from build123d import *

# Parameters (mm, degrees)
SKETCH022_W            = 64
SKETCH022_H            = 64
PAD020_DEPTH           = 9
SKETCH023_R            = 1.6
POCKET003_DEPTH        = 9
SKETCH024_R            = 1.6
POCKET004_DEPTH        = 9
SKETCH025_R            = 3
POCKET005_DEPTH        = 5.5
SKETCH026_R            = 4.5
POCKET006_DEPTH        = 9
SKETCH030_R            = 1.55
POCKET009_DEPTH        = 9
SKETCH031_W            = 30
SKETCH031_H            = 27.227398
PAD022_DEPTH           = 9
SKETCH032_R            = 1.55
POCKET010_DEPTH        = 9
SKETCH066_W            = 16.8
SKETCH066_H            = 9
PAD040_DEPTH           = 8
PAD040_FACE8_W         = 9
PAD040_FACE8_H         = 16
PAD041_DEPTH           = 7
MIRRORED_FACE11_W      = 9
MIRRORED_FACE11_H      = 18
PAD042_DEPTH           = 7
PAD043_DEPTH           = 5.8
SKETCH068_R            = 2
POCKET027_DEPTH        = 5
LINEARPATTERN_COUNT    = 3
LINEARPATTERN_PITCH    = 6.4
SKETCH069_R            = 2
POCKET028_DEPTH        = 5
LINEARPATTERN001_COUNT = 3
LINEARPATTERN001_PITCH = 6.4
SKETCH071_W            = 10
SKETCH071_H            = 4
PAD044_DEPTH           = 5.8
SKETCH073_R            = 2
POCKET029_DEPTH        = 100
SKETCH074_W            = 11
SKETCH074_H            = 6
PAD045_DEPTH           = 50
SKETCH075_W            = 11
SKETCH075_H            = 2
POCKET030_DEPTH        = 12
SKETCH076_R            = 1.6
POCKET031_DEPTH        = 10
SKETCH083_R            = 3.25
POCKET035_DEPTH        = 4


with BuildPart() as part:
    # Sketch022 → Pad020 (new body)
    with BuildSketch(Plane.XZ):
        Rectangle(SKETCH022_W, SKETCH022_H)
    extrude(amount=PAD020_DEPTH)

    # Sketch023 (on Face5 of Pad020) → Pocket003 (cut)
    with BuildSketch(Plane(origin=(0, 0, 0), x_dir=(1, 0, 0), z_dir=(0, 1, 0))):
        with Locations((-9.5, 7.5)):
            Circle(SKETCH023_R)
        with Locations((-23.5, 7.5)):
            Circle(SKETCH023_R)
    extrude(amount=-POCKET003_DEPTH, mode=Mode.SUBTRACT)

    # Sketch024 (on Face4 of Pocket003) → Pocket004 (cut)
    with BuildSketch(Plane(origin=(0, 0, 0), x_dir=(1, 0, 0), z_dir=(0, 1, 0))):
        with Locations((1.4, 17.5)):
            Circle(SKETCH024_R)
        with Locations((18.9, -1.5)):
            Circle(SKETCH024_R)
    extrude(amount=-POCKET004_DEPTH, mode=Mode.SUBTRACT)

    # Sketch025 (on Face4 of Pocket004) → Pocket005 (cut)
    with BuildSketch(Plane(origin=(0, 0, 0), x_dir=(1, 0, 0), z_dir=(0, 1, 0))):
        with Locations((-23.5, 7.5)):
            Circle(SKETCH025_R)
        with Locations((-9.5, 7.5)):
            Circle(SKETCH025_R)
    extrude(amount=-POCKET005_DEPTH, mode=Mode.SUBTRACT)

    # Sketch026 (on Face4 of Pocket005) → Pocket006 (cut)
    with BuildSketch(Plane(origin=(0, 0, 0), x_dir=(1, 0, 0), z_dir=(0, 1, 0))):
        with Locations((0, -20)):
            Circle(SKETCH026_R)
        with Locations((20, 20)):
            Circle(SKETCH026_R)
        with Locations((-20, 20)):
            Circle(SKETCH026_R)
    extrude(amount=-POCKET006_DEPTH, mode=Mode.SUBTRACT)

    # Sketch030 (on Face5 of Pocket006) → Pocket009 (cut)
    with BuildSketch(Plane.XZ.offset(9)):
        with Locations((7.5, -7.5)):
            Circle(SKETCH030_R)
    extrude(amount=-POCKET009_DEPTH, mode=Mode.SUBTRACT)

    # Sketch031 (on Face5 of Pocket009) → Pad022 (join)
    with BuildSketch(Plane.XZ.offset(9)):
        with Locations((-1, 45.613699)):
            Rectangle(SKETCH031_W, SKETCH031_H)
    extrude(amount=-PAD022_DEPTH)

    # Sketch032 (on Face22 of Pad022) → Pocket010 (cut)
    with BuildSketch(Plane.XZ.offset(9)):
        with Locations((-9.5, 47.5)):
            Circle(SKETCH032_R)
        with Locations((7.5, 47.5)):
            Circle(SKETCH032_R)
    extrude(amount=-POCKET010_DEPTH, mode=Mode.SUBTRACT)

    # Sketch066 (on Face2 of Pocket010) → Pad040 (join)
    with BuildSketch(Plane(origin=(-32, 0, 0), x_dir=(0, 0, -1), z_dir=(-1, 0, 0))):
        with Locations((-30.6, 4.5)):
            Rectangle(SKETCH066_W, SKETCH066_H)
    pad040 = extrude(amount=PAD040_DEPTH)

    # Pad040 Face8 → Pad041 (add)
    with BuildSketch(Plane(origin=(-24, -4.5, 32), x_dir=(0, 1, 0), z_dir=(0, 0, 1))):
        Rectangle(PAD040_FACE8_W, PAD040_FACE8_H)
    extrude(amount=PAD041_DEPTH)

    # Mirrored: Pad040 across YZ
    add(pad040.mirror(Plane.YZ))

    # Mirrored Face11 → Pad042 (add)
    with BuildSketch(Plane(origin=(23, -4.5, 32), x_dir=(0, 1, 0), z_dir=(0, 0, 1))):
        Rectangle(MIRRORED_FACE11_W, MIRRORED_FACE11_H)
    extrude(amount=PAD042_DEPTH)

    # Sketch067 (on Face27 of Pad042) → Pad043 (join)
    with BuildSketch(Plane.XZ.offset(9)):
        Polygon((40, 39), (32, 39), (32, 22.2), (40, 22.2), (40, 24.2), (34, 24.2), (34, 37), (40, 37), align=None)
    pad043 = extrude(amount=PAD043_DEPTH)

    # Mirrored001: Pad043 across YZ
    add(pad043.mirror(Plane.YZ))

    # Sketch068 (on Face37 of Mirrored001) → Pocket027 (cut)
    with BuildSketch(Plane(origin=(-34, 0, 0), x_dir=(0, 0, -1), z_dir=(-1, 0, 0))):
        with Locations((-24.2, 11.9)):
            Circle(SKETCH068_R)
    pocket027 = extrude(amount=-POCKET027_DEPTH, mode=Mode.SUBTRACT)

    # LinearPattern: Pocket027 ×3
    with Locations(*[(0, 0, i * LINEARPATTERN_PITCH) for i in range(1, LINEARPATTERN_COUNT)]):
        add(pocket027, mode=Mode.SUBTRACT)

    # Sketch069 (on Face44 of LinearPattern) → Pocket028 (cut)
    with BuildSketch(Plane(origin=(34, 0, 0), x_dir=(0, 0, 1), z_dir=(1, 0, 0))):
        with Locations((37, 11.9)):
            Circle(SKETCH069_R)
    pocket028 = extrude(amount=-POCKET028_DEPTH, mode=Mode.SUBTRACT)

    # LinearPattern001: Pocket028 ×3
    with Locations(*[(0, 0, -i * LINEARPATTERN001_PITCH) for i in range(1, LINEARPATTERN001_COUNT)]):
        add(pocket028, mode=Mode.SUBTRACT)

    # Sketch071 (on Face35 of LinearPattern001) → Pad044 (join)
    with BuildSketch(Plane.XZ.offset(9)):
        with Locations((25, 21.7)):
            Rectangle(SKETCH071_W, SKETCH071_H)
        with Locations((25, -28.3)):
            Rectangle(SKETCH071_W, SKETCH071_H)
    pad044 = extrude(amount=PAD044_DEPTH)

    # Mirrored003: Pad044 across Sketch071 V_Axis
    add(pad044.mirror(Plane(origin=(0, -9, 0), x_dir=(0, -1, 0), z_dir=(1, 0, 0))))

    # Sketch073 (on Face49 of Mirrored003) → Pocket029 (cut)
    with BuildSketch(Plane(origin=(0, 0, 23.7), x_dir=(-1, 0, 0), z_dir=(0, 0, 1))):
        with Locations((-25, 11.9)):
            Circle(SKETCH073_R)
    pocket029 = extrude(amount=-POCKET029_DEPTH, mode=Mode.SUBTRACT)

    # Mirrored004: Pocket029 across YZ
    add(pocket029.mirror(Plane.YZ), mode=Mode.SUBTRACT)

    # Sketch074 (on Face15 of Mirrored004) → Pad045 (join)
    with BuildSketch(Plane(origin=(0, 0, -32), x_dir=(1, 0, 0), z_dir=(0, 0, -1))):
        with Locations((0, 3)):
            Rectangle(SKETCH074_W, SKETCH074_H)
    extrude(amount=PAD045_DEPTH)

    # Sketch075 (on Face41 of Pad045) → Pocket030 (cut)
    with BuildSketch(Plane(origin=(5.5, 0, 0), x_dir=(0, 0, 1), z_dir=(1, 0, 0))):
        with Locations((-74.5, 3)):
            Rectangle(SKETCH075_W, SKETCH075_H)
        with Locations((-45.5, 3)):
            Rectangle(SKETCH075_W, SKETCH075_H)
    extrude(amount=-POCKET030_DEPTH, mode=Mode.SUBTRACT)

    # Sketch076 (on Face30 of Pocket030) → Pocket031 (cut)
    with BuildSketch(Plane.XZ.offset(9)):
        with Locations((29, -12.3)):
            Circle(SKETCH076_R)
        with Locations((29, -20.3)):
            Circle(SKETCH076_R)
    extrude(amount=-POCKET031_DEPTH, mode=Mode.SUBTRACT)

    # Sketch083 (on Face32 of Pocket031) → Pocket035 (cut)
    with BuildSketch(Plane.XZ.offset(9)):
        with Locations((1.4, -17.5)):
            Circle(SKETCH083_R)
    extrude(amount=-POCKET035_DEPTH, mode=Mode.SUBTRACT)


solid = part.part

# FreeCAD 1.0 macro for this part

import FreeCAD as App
import Part
import Sketcher

V = App.Vector

doc = App.newDocument("Part")
params = doc.addObject("Spreadsheet::Sheet", "Params")
for row, (alias, value) in enumerate([
    ("sketch1_width", "64 mm"),
    ("pad1_length", "9 mm"),
    ("sketch2_diameter", "3.2 mm"),
    ("pocket1_length", "9 mm"),
    ("sketch3_diameter", "3.2 mm"),
    ("pocket2_length", "9 mm"),
    ("sketch4_diameter", "6 mm"),
    ("pocket3_length", "5.5 mm"),
    ("sketch5_diameter", "9 mm"),
    ("pocket4_length", "9 mm"),
    ("sketch6_diameter", "3.1 mm"),
    ("pocket5_length", "9 mm"),
    ("sketch7_width", "30 mm"),
    ("pad2_length", "9 mm"),
    ("sketch8_diameter", "3.1 mm"),
    ("pocket6_length", "9 mm"),
    ("sketch9_width", "9 mm"),
    ("sketch9_height", "16.8 mm"),
    ("pad3_length", "8 mm"),
    ("sketch10_width", "16 mm"),
    ("sketch10_height", "9 mm"),
    ("pad4_length", "7 mm"),
    ("sketch11_width", "18 mm"),
    ("sketch11_height", "9 mm"),
    ("pad5_length", "7 mm"),
    ("sketch12_width", "8 mm"),
    ("sketch12_width2", "6 mm"),
    ("sketch12_height", "2 mm"),
    ("sketch12_height2", "16.8 mm"),
    ("pad6_length", "5.8 mm"),
    ("sketch13_diameter", "4 mm"),
    ("pocket7_length", "5 mm"),
    ("linearpattern_pitch", "6.4 mm"),
    ("sketch14_diameter", "4 mm"),
    ("pocket8_length", "5 mm"),
    ("linearpattern2_pitch", "6.4 mm"),
    ("sketch15_width", "10 mm"),
    ("sketch15_height", "4 mm"),
    ("pad7_length", "5.8 mm"),
    ("sketch16_diameter", "4 mm"),
    ("pocket9_length", "100 mm"),
    ("sketch17_width", "11 mm"),
    ("sketch17_height", "6 mm"),
    ("pad8_length", "50 mm"),
    ("sketch18_width", "2 mm"),
    ("sketch18_height", "11 mm"),
    ("pocket10_length", "12 mm"),
    ("sketch19_diameter", "3.2 mm"),
    ("pocket11_length", "10 mm"),
    ("sketch20_diameter", "6.5 mm"),
    ("pocket12_length", "4 mm"),
], start=1):
    params.set(f"A{row}", alias)
    params.set(f"B{row}", "=" + value)
    params.setAlias(f"B{row}", alias)

body = doc.addObject("PartDesign::Body", "Body")

# Sketch on XZ plane
sketch1 = body.newObject("Sketcher::SketchObject", "Sketch")
sketch1.AttachmentSupport = (doc.getObject("XZ_Plane"), [""])
sketch1.MapMode = "FlatFace"
sketch1.addGeometry([
    Part.LineSegment(V(-32, 32, 0), V(-32, -32, 0)),
    Part.LineSegment(V(-32, -32, 0), V(32, -32, 0)),
    Part.LineSegment(V(32, -32, 0), V(32, 32, 0)),
    Part.LineSegment(V(32, 32, 0), V(-32, 32, 0)),
], False)
sketch1.addConstraint([
    Sketcher.Constraint("Coincident", 0, 2, 1, 1),
    Sketcher.Constraint("Coincident", 1, 2, 2, 1),
    Sketcher.Constraint("Coincident", 2, 2, 3, 1),
    Sketcher.Constraint("Coincident", 3, 2, 0, 1),
    Sketcher.Constraint("Vertical", 0),
    Sketcher.Constraint("Horizontal", 1),
    Sketcher.Constraint("Vertical", 2),
    Sketcher.Constraint("Horizontal", 3),
    Sketcher.Constraint("Symmetric", 0, 2, 2, 2, -1, 1),
    Sketcher.Constraint("Equal", 3, 0),
    Sketcher.Constraint("DistanceX", 1, 1, 1, 2, 64.0),
])
sketch1.setExpression("Constraints[10]", "Params.sketch1_width")
pad1 = body.newObject("PartDesign::Pad", "Pad")
pad1.Profile = sketch1
pad1.setExpression("Length", "Params.pad1_length")

# Sketch on XZ plane
sketch2 = body.newObject("Sketcher::SketchObject", "Sketch001")
sketch2.AttachmentSupport = (doc.getObject("XZ_Plane"), [""])
sketch2.MapMode = "FlatFace"
sketch2.addGeometry([
    Part.Circle(V(-9.5, -7.5, 0), V(0, 0, 1), 1.6),
    Part.Circle(V(-23.5, -7.5, 0), V(0, 0, 1), 1.6),
], False)
sketch2.addConstraint([
    Sketcher.Constraint("Equal", 0, 1),
    Sketcher.Constraint("Horizontal", 0, 3, 1, 3),
    Sketcher.Constraint("Diameter", 0, 3.2),
    Sketcher.Constraint("DistanceX", 1, 3, 0, 3, 14.0),
    Sketcher.Constraint("DistanceX", 0, 3, -1, 1, 9.5),
    Sketcher.Constraint("DistanceY", 0, 3, -1, 1, 7.5),
])
sketch2.setExpression("Constraints[2]", "Params.sketch2_diameter")
pocket1 = body.newObject("PartDesign::Pocket", "Pocket")
pocket1.Profile = sketch2
pocket1.setExpression("Length", "Params.pocket1_length")
pocket1.Reversed = True

# Sketch on XZ plane
sketch3 = body.newObject("Sketcher::SketchObject", "Sketch002")
sketch3.AttachmentSupport = (doc.getObject("XZ_Plane"), [""])
sketch3.MapMode = "FlatFace"
sketch3.addGeometry([
    Part.Circle(V(1.4, -17.5, 0), V(0, 0, 1), 1.6),
    Part.Circle(V(18.9, 1.5, 0), V(0, 0, 1), 1.6),
], False)
sketch3.addConstraint([
    Sketcher.Constraint("Equal", 0, 1),
    Sketcher.Constraint("Diameter", 0, 3.2),
    Sketcher.Constraint("DistanceY", 0, 3, 1, 3, 19.0),
    Sketcher.Constraint("DistanceX", -1, 1, 0, 3, 1.4),
    Sketcher.Constraint("DistanceY", 0, 3, -1, 1, 17.5),
    Sketcher.Constraint("DistanceX", -1, 1, 1, 3, 18.9),
])
sketch3.setExpression("Constraints[1]", "Params.sketch3_diameter")
pocket2 = body.newObject("PartDesign::Pocket", "Pocket001")
pocket2.Profile = sketch3
pocket2.setExpression("Length", "Params.pocket2_length")
pocket2.Reversed = True

# Sketch on XZ plane
sketch4 = body.newObject("Sketcher::SketchObject", "Sketch003")
sketch4.AttachmentSupport = (doc.getObject("XZ_Plane"), [""])
sketch4.MapMode = "FlatFace"
sketch4.addGeometry([
    Part.Circle(V(-23.5, -7.5, 0), V(0, 0, 1), 3),
    Part.Circle(V(-9.5, -7.5, 0), V(0, 0, 1), 3),
], False)
sketch4.addConstraint([
    Sketcher.Constraint("Equal", 0, 1),
    Sketcher.Constraint("Horizontal", 0, 3, 1, 3),
    Sketcher.Constraint("Diameter", 0, 6.0),
    Sketcher.Constraint("DistanceX", 0, 3, 1, 3, 14.0),
    Sketcher.Constraint("DistanceX", 0, 3, -1, 1, 23.5),
    Sketcher.Constraint("DistanceY", 0, 3, -1, 1, 7.5),
])
sketch4.setExpression("Constraints[2]", "Params.sketch4_diameter")
pocket3 = body.newObject("PartDesign::Pocket", "Pocket002")
pocket3.Profile = sketch4
pocket3.setExpression("Length", "Params.pocket3_length")
pocket3.Reversed = True

# Sketch on XZ plane
sketch5 = body.newObject("Sketcher::SketchObject", "Sketch004")
sketch5.AttachmentSupport = (doc.getObject("XZ_Plane"), [""])
sketch5.MapMode = "FlatFace"
sketch5.addGeometry([
    Part.Circle(V(0, 20, 0), V(0, 0, 1), 4.5),
    Part.Circle(V(20, -20, 0), V(0, 0, 1), 4.5),
    Part.Circle(V(-20, -20, 0), V(0, 0, 1), 4.5),
], False)
sketch5.addConstraint([
    Sketcher.Constraint("Equal", 0, 1),
    Sketcher.Constraint("Equal", 1, 2),
    Sketcher.Constraint("Symmetric", 1, 3, 2, 3, -2),
    Sketcher.Constraint("PointOnObject", 0, 3, -2),
    Sketcher.Constraint("Diameter", 0, 9.0),
    Sketcher.Constraint("DistanceY", -1, 1, 0, 3, 20.0),
    Sketcher.Constraint("DistanceX", -1, 1, 1, 3, 20.0),
    Sketcher.Constraint("DistanceY", 1, 3, -1, 1, 20.0),
])
sketch5.setExpression("Constraints[4]", "Params.sketch5_diameter")
pocket4 = body.newObject("PartDesign::Pocket", "Pocket003")
pocket4.Profile = sketch5
pocket4.setExpression("Length", "Params.pocket4_length")
pocket4.Reversed = True

# Sketch on XZ plane
sketch6 = body.newObject("Sketcher::SketchObject", "Sketch005")
sketch6.AttachmentSupport = (doc.getObject("XZ_Plane"), [""])
sketch6.MapMode = "FlatFace"
sketch6.AttachmentOffset = App.Placement(V(0, 0, 9), App.Rotation())
sketch6.addGeometry(Part.Circle(V(7.5, -7.5, 0), V(0, 0, 1), 1.6), False)
sketch6.addConstraint([
    Sketcher.Constraint("Diameter", 0, 3.1),
    Sketcher.Constraint("DistanceX", -1, 1, 0, 3, 7.5),
    Sketcher.Constraint("DistanceY", 0, 3, -1, 1, 7.5),
])
sketch6.setExpression("Constraints[0]", "Params.sketch6_diameter")
pocket5 = body.newObject("PartDesign::Pocket", "Pocket004")
pocket5.Profile = sketch6
pocket5.setExpression("Length", "Params.pocket5_length")

# Sketch on XZ plane
sketch7 = body.newObject("Sketcher::SketchObject", "Sketch006")
sketch7.AttachmentSupport = (doc.getObject("XZ_Plane"), [""])
sketch7.MapMode = "FlatFace"
sketch7.AttachmentOffset = App.Placement(V(0, 0, 9), App.Rotation())
sketch7.addGeometry([
    Part.LineSegment(V(-16, 59, 0), V(-16, 32, 0)),
    Part.LineSegment(V(-16, 32, 0), V(14, 32, 0)),
    Part.LineSegment(V(14, 32, 0), V(14, 59, 0)),
    Part.LineSegment(V(14, 59, 0), V(-16, 59, 0)),
], False)
sketch7.addConstraint([
    Sketcher.Constraint("Coincident", 0, 2, 1, 1),
    Sketcher.Constraint("Coincident", 1, 2, 2, 1),
    Sketcher.Constraint("Coincident", 2, 2, 3, 1),
    Sketcher.Constraint("Coincident", 3, 2, 0, 1),
    Sketcher.Constraint("Vertical", 0),
    Sketcher.Constraint("Horizontal", 1),
    Sketcher.Constraint("Vertical", 2),
    Sketcher.Constraint("Horizontal", 3),
    Sketcher.Constraint("DistanceX", 1, 1, 1, 2, 30.0),
    Sketcher.Constraint("DistanceX", 0, 2, -1, 1, 16.0),
    Sketcher.Constraint("DistanceY", -1, 1, 0, 2, 32.0),
    Sketcher.Constraint("DistanceY", 0, 2, 0, 1, 27.227398),
])
sketch7.setExpression("Constraints[8]", "Params.sketch7_width")
pad2 = body.newObject("PartDesign::Pad", "Pad001")
pad2.Profile = sketch7
pad2.setExpression("Length", "Params.pad2_length")
pad2.Reversed = True

# Sketch on XZ plane
sketch8 = body.newObject("Sketcher::SketchObject", "Sketch007")
sketch8.AttachmentSupport = (doc.getObject("XZ_Plane"), [""])
sketch8.MapMode = "FlatFace"
sketch8.AttachmentOffset = App.Placement(V(0, 0, 9), App.Rotation())
sketch8.addGeometry([
    Part.Circle(V(-9.5, 47.5, 0), V(0, 0, 1), 1.6),
    Part.Circle(V(7.5, 47.5, 0), V(0, 0, 1), 1.6),
], False)
sketch8.addConstraint([
    Sketcher.Constraint("Equal", 0, 1),
    Sketcher.Constraint("Horizontal", 0, 3, 1, 3),
    Sketcher.Constraint("Diameter", 0, 3.1),
    Sketcher.Constraint("DistanceX", 0, 3, 1, 3, 17.0),
    Sketcher.Constraint("DistanceX", 0, 3, -1, 1, 9.5),
    Sketcher.Constraint("DistanceY", -1, 1, 0, 3, 47.5),
])
sketch8.setExpression("Constraints[2]", "Params.sketch8_diameter")
pocket6 = body.newObject("PartDesign::Pocket", "Pocket005")
pocket6.Profile = sketch8
pocket6.setExpression("Length", "Params.pocket6_length")

# Sketch on YZ plane
sketch9 = body.newObject("Sketcher::SketchObject", "Sketch008")
sketch9.AttachmentSupport = (doc.getObject("YZ_Plane"), [""])
sketch9.MapMode = "FlatFace"
sketch9.AttachmentOffset = App.Placement(V(0, 0, -32), App.Rotation())
sketch9.addGeometry([
    Part.LineSegment(V(-9, 39, 0), V(0, 39, 0)),
    Part.LineSegment(V(0, 39, 0), V(0, 22, 0)),
    Part.LineSegment(V(0, 22, 0), V(-9, 22, 0)),
    Part.LineSegment(V(-9, 22, 0), V(-9, 39, 0)),
], False)
sketch9.addConstraint([
    Sketcher.Constraint("Coincident", 0, 2, 1, 1),
    Sketcher.Constraint("Coincident", 1, 2, 2, 1),
    Sketcher.Constraint("Coincident", 2, 2, 3, 1),
    Sketcher.Constraint("Coincident", 3, 2, 0, 1),
    Sketcher.Constraint("Horizontal", 0),
    Sketcher.Constraint("Vertical", 1),
    Sketcher.Constraint("Horizontal", 2),
    Sketcher.Constraint("Vertical", 3),
    Sketcher.Constraint("PointOnObject", 0, 2, -2),
    Sketcher.Constraint("DistanceX", 0, 1, 0, 2, 9.0),
    Sketcher.Constraint("DistanceY", 1, 2, 1, 1, 16.8),
    Sketcher.Constraint("DistanceY", -1, 1, 0, 2, 39.0),
])
sketch9.setExpression("Constraints[9]", "Params.sketch9_width")
sketch9.setExpression("Constraints[10]", "Params.sketch9_height")
pad3 = body.newObject("PartDesign::Pad", "Pad002")
pad3.Profile = sketch9
pad3.setExpression("Length", "Params.pad3_length")
pad3.Reversed = True

# Sketch on XY plane
sketch10 = body.newObject("Sketcher::SketchObject", "Sketch009")
sketch10.AttachmentSupport = (doc.getObject("XY_Plane"), [""])
sketch10.MapMode = "FlatFace"
sketch10.AttachmentOffset = App.Placement(V(0, 0, 32), App.Rotation())
sketch10.addGeometry([
    Part.LineSegment(V(-32, -9, 0), V(-16, -9, 0)),
    Part.LineSegment(V(-16, -9, 0), V(-16, 0, 0)),
    Part.LineSegment(V(-16, 0, 0), V(-32, 0, 0)),
    Part.LineSegment(V(-32, 0, 0), V(-32, -9, 0)),
], False)
sketch10.addConstraint([
    Sketcher.Constraint("Coincident", 0, 2, 1, 1),
    Sketcher.Constraint("Coincident", 1, 2, 2, 1),
    Sketcher.Constraint("Coincident", 2, 2, 3, 1),
    Sketcher.Constraint("Coincident", 3, 2, 0, 1),
    Sketcher.Constraint("Horizontal", 0),
    Sketcher.Constraint("Vertical", 1),
    Sketcher.Constraint("Horizontal", 2),
    Sketcher.Constraint("Vertical", 3),
    Sketcher.Constraint("PointOnObject", 1, 2, -1),
    Sketcher.Constraint("DistanceX", 0, 1, 0, 2, 16.0),
    Sketcher.Constraint("DistanceY", 1, 1, 1, 2, 9.0),
    Sketcher.Constraint("DistanceX", 0, 2, -1, 1, 16.0),
])
sketch10.setExpression("Constraints[9]", "Params.sketch10_width")
sketch10.setExpression("Constraints[10]", "Params.sketch10_height")
pad4 = body.newObject("PartDesign::Pad", "Pad003")
pad4.Profile = sketch10
pad4.setExpression("Length", "Params.pad4_length")
doc.recompute()

mirrored = body.newObject("PartDesign::Mirrored", "Mirrored")
mirrored.Originals = [pad3]
mirrored.MirrorPlane = (doc.getObject("YZ_Plane"), [""])
body.Tip = mirrored

# Sketch on XY plane
sketch11 = body.newObject("Sketcher::SketchObject", "Sketch010")
sketch11.AttachmentSupport = (doc.getObject("XY_Plane"), [""])
sketch11.MapMode = "FlatFace"
sketch11.AttachmentOffset = App.Placement(V(0, 0, 32), App.Rotation())
sketch11.addGeometry([
    Part.LineSegment(V(14, -9, 0), V(32, -9, 0)),
    Part.LineSegment(V(32, -9, 0), V(32, 0, 0)),
    Part.LineSegment(V(32, 0, 0), V(14, 0, 0)),
    Part.LineSegment(V(14, 0, 0), V(14, -9, 0)),
], False)
sketch11.addConstraint([
    Sketcher.Constraint("Coincident", 0, 2, 1, 1),
    Sketcher.Constraint("Coincident", 1, 2, 2, 1),
    Sketcher.Constraint("Coincident", 2, 2, 3, 1),
    Sketcher.Constraint("Coincident", 3, 2, 0, 1),
    Sketcher.Constraint("Horizontal", 0),
    Sketcher.Constraint("Vertical", 1),
    Sketcher.Constraint("Horizontal", 2),
    Sketcher.Constraint("Vertical", 3),
    Sketcher.Constraint("PointOnObject", 1, 2, -1),
    Sketcher.Constraint("DistanceX", 0, 1, 0, 2, 18.0),
    Sketcher.Constraint("DistanceY", 1, 1, 1, 2, 9.0),
    Sketcher.Constraint("DistanceX", -1, 1, 0, 2, 32.0),
])
sketch11.setExpression("Constraints[9]", "Params.sketch11_width")
sketch11.setExpression("Constraints[10]", "Params.sketch11_height")
pad5 = body.newObject("PartDesign::Pad", "Pad004")
pad5.Profile = sketch11
pad5.setExpression("Length", "Params.pad5_length")

# Sketch on XZ plane
sketch12 = body.newObject("Sketcher::SketchObject", "Sketch011")
sketch12.AttachmentSupport = (doc.getObject("XZ_Plane"), [""])
sketch12.MapMode = "FlatFace"
sketch12.AttachmentOffset = App.Placement(V(0, 0, 9), App.Rotation())
sketch12.addGeometry([
    Part.LineSegment(V(40, 39, 0), V(32, 39, 0)),  # 0
    Part.LineSegment(V(32, 39, 0), V(32, 22.2, 0)),  # 1
    Part.LineSegment(V(32, 22.2, 0), V(40, 22.2, 0)),  # 2
    Part.LineSegment(V(40, 22.2, 0), V(40, 24.2, 0)),  # 3
    Part.LineSegment(V(40, 24.2, 0), V(34, 24.2, 0)),  # 4
    Part.LineSegment(V(34, 24.2, 0), V(34, 37, 0)),  # 5
    Part.LineSegment(V(34, 37, 0), V(40, 37, 0)),  # 6
    Part.LineSegment(V(40, 37, 0), V(40, 39, 0)),  # 7
], False)
sketch12.addConstraint([
    Sketcher.Constraint("Coincident", 0, 2, 1, 1),
    Sketcher.Constraint("Coincident", 1, 2, 2, 1),
    Sketcher.Constraint("Coincident", 2, 2, 3, 1),
    Sketcher.Constraint("Coincident", 3, 2, 4, 1),
    Sketcher.Constraint("Coincident", 4, 2, 5, 1),
    Sketcher.Constraint("Coincident", 5, 2, 6, 1),
    Sketcher.Constraint("Coincident", 6, 2, 7, 1),
    Sketcher.Constraint("Coincident", 7, 2, 0, 1),
    Sketcher.Constraint("Horizontal", 0),
    Sketcher.Constraint("Vertical", 1),
    Sketcher.Constraint("Horizontal", 2),
    Sketcher.Constraint("Vertical", 3),
    Sketcher.Constraint("Horizontal", 4),
    Sketcher.Constraint("Vertical", 5),
    Sketcher.Constraint("Horizontal", 6),
    Sketcher.Constraint("Vertical", 7),
    Sketcher.Constraint("Vertical", 3, 2, 6, 2),
    Sketcher.Constraint("Equal", 3, 7),
    Sketcher.Constraint("DistanceX", 0, 2, 0, 1, 8.0),
    Sketcher.Constraint("DistanceX", 4, 2, 4, 1, 6.0),
    Sketcher.Constraint("DistanceY", 3, 1, 3, 2, 2.0),
    Sketcher.Constraint("DistanceY", 1, 2, 1, 1, 16.8),
    Sketcher.Constraint("DistanceX", -1, 1, 0, 2, 32.0),
    Sketcher.Constraint("DistanceY", -1, 1, 0, 2, 39.0),
])
sketch12.setExpression("Constraints[18]", "Params.sketch12_width")
sketch12.setExpression("Constraints[19]", "Params.sketch12_width2")
sketch12.setExpression("Constraints[20]", "Params.sketch12_height")
sketch12.setExpression("Constraints[21]", "Params.sketch12_height2")
pad6 = body.newObject("PartDesign::Pad", "Pad005")
pad6.Profile = sketch12
pad6.setExpression("Length", "Params.pad6_length")
doc.recompute()

mirrored2 = body.newObject("PartDesign::Mirrored", "Mirrored001")
mirrored2.Originals = [pad6]
mirrored2.MirrorPlane = (doc.getObject("YZ_Plane"), [""])
body.Tip = mirrored2

# Sketch on YZ plane
sketch13 = body.newObject("Sketcher::SketchObject", "Sketch012")
sketch13.AttachmentSupport = (doc.getObject("YZ_Plane"), [""])
sketch13.MapMode = "FlatFace"
sketch13.AttachmentOffset = App.Placement(V(0, 0, -34), App.Rotation())
sketch13.addGeometry(Part.Circle(V(-11.9, 24.2, 0), V(0, 0, 1), 2), False)
sketch13.addConstraint([
    Sketcher.Constraint("Diameter", 0, 4.0),
    Sketcher.Constraint("DistanceX", 0, 3, -1, 1, 11.9),
    Sketcher.Constraint("DistanceY", -1, 1, 0, 3, 24.2),
])
sketch13.setExpression("Constraints[0]", "Params.sketch13_diameter")
pocket7 = body.newObject("PartDesign::Pocket", "Pocket006")
pocket7.Profile = sketch13
pocket7.setExpression("Length", "Params.pocket7_length")
pocket7.Reversed = True
doc.recompute()

linearpattern = body.newObject("PartDesign::LinearPattern", "LinearPattern")
linearpattern.Originals = [pocket7]
linearpattern.Direction = (doc.getObject("Z_Axis"), [""])
linearpattern.Mode = "offset"
linearpattern.setExpression("Offset", "Params.linearpattern_pitch")
linearpattern.Occurrences = 3
body.Tip = linearpattern

# Sketch on YZ plane
sketch14 = body.newObject("Sketcher::SketchObject", "Sketch013")
sketch14.AttachmentSupport = (doc.getObject("YZ_Plane"), [""])
sketch14.MapMode = "FlatFace"
sketch14.AttachmentOffset = App.Placement(V(0, 0, 34), App.Rotation())
sketch14.addGeometry(Part.Circle(V(-11.9, 37, 0), V(0, 0, 1), 2), False)
sketch14.addConstraint([
    Sketcher.Constraint("Diameter", 0, 4.0),
    Sketcher.Constraint("DistanceY", -1, 1, 0, 3, 37.0),
    Sketcher.Constraint("DistanceX", 0, 3, -1, 1, 11.9),
])
sketch14.setExpression("Constraints[0]", "Params.sketch14_diameter")
pocket8 = body.newObject("PartDesign::Pocket", "Pocket007")
pocket8.Profile = sketch14
pocket8.setExpression("Length", "Params.pocket8_length")
doc.recompute()

linearpattern2 = body.newObject("PartDesign::LinearPattern", "LinearPattern001")
linearpattern2.Originals = [pocket8]
linearpattern2.Direction = (doc.getObject("Z_Axis"), [""])
linearpattern2.Mode = "offset"
linearpattern2.setExpression("Offset", "Params.linearpattern2_pitch")
linearpattern2.Occurrences = 3
linearpattern2.Reversed = True
body.Tip = linearpattern2

# Sketch on XZ plane
sketch15 = body.newObject("Sketcher::SketchObject", "Sketch014")
sketch15.AttachmentSupport = (doc.getObject("XZ_Plane"), [""])
sketch15.MapMode = "FlatFace"
sketch15.AttachmentOffset = App.Placement(V(0, 0, 9), App.Rotation())
sketch15.addGeometry([
    Part.LineSegment(V(20, 23.7, 0), V(20, 19.7, 0)),  # 0
    Part.LineSegment(V(20, 19.7, 0), V(30, 19.7, 0)),  # 1
    Part.LineSegment(V(30, 19.7, 0), V(30, 23.7, 0)),  # 2
    Part.LineSegment(V(30, 23.7, 0), V(20, 23.7, 0)),  # 3
    Part.LineSegment(V(20, -26.3, 0), V(20, -30.3, 0)),  # 4
    Part.LineSegment(V(20, -30.3, 0), V(30, -30.3, 0)),  # 5
    Part.LineSegment(V(30, -30.3, 0), V(30, -26.3, 0)),  # 6
    Part.LineSegment(V(30, -26.3, 0), V(20, -26.3, 0)),  # 7
], False)
sketch15.addConstraint([
    Sketcher.Constraint("Coincident", 0, 2, 1, 1),
    Sketcher.Constraint("Coincident", 1, 2, 2, 1),
    Sketcher.Constraint("Coincident", 2, 2, 3, 1),
    Sketcher.Constraint("Coincident", 3, 2, 0, 1),
    Sketcher.Constraint("Coincident", 4, 2, 5, 1),
    Sketcher.Constraint("Coincident", 5, 2, 6, 1),
    Sketcher.Constraint("Coincident", 6, 2, 7, 1),
    Sketcher.Constraint("Coincident", 7, 2, 4, 1),
    Sketcher.Constraint("Vertical", 0),
    Sketcher.Constraint("Horizontal", 1),
    Sketcher.Constraint("Vertical", 2),
    Sketcher.Constraint("Horizontal", 3),
    Sketcher.Constraint("Vertical", 4),
    Sketcher.Constraint("Horizontal", 5),
    Sketcher.Constraint("Vertical", 6),
    Sketcher.Constraint("Horizontal", 7),
    Sketcher.Constraint("Vertical", 3, 2, 4, 2),
    Sketcher.Constraint("Vertical", 2, 2, 5, 2),
    Sketcher.Constraint("Equal", 2, 4),
    Sketcher.Constraint("DistanceX", 1, 1, 1, 2, 10.0),
    Sketcher.Constraint("DistanceY", 0, 2, 0, 1, 4.0),
    Sketcher.Constraint("DistanceX", -1, 1, 0, 2, 20.0),
    Sketcher.Constraint("DistanceY", 4, 2, 0, 2, 50.0),
    Sketcher.Constraint("DistanceY", -1, 1, 0, 2, 19.7),
])
sketch15.setExpression("Constraints[19]", "Params.sketch15_width")
sketch15.setExpression("Constraints[20]", "Params.sketch15_height")
pad7 = body.newObject("PartDesign::Pad", "Pad006")
pad7.Profile = sketch15
pad7.setExpression("Length", "Params.pad7_length")
doc.recompute()

mirrored3 = body.newObject("PartDesign::Mirrored", "Mirrored002")
mirrored3.Originals = [pad7]
mirrored3.MirrorPlane = (doc.getObject("YZ_Plane"), [""])
body.Tip = mirrored3

# Sketch on XY plane
sketch16 = body.newObject("Sketcher::SketchObject", "Sketch015")
sketch16.AttachmentSupport = (doc.getObject("XY_Plane"), [""])
sketch16.MapMode = "FlatFace"
sketch16.AttachmentOffset = App.Placement(V(0, 0, 23.7), App.Rotation())
sketch16.addGeometry(Part.Circle(V(25, -11.9, 0), V(0, 0, 1), 2), False)
sketch16.addConstraint([
    Sketcher.Constraint("Diameter", 0, 4.0),
    Sketcher.Constraint("DistanceX", -1, 1, 0, 3, 25.0),
    Sketcher.Constraint("DistanceY", 0, 3, -1, 1, 11.9),
])
sketch16.setExpression("Constraints[0]", "Params.sketch16_diameter")
pocket9 = body.newObject("PartDesign::Pocket", "Pocket008")
pocket9.Profile = sketch16
pocket9.setExpression("Length", "Params.pocket9_length")
doc.recompute()

mirrored4 = body.newObject("PartDesign::Mirrored", "Mirrored003")
mirrored4.Originals = [pocket9]
mirrored4.MirrorPlane = (doc.getObject("YZ_Plane"), [""])
body.Tip = mirrored4

# Sketch on XY plane
sketch17 = body.newObject("Sketcher::SketchObject", "Sketch016")
sketch17.AttachmentSupport = (doc.getObject("XY_Plane"), [""])
sketch17.MapMode = "FlatFace"
sketch17.AttachmentOffset = App.Placement(V(0, 0, -32), App.Rotation())
sketch17.addGeometry([
    Part.LineSegment(V(-6, -6, 0), V(-6, 0, 0)),
    Part.LineSegment(V(-6, 0, 0), V(6, 0, 0)),
    Part.LineSegment(V(6, 0, 0), V(6, -6, 0)),
    Part.LineSegment(V(6, -6, 0), V(-6, -6, 0)),
], False)
sketch17.addConstraint([
    Sketcher.Constraint("Coincident", 0, 2, 1, 1),
    Sketcher.Constraint("Coincident", 1, 2, 2, 1),
    Sketcher.Constraint("Coincident", 2, 2, 3, 1),
    Sketcher.Constraint("Coincident", 3, 2, 0, 1),
    Sketcher.Constraint("Vertical", 0),
    Sketcher.Constraint("Horizontal", 1),
    Sketcher.Constraint("Vertical", 2),
    Sketcher.Constraint("Horizontal", 3),
    Sketcher.Constraint("Symmetric", 0, 2, 1, 2, -1, 1),
    Sketcher.Constraint("DistanceX", 1, 1, 1, 2, 11.0),
    Sketcher.Constraint("DistanceY", 0, 1, 0, 2, 6.0),
])
sketch17.setExpression("Constraints[9]", "Params.sketch17_width")
sketch17.setExpression("Constraints[10]", "Params.sketch17_height")
pad8 = body.newObject("PartDesign::Pad", "Pad007")
pad8.Profile = sketch17
pad8.setExpression("Length", "Params.pad8_length")
pad8.Reversed = True

# Sketch on YZ plane
sketch18 = body.newObject("Sketcher::SketchObject", "Sketch017")
sketch18.AttachmentSupport = (doc.getObject("YZ_Plane"), [""])
sketch18.MapMode = "FlatFace"
sketch18.AttachmentOffset = App.Placement(V(0, 0, 5.5), App.Rotation())
sketch18.addGeometry([
    Part.LineSegment(V(-4, -80, 0), V(-2, -80, 0)),  # 0
    Part.LineSegment(V(-2, -80, 0), V(-2, -69, 0)),  # 1
    Part.LineSegment(V(-2, -69, 0), V(-4, -69, 0)),  # 2
    Part.LineSegment(V(-4, -69, 0), V(-4, -80, 0)),  # 3
    Part.LineSegment(V(-4, -51, 0), V(-2, -51, 0)),  # 4
    Part.LineSegment(V(-2, -51, 0), V(-2, -40, 0)),  # 5
    Part.LineSegment(V(-2, -40, 0), V(-4, -40, 0)),  # 6
    Part.LineSegment(V(-4, -40, 0), V(-4, -51, 0)),  # 7
], False)
sketch18.addConstraint([
    Sketcher.Constraint("Coincident", 0, 2, 1, 1),
    Sketcher.Constraint("Coincident", 1, 2, 2, 1),
    Sketcher.Constraint("Coincident", 2, 2, 3, 1),
    Sketcher.Constraint("Coincident", 3, 2, 0, 1),
    Sketcher.Constraint("Coincident", 4, 2, 5, 1),
    Sketcher.Constraint("Coincident", 5, 2, 6, 1),
    Sketcher.Constraint("Coincident", 6, 2, 7, 1),
    Sketcher.Constraint("Coincident", 7, 2, 4, 1),
    Sketcher.Constraint("Horizontal", 0),
    Sketcher.Constraint("Vertical", 1),
    Sketcher.Constraint("Horizontal", 2),
    Sketcher.Constraint("Vertical", 3),
    Sketcher.Constraint("Horizontal", 4),
    Sketcher.Constraint("Vertical", 5),
    Sketcher.Constraint("Horizontal", 6),
    Sketcher.Constraint("Vertical", 7),
    Sketcher.Constraint("Vertical", 1, 2, 4, 2),
    Sketcher.Constraint("Vertical", 3, 2, 6, 2),
    Sketcher.Constraint("Equal", 3, 5),
    Sketcher.Constraint("DistanceX", 0, 1, 0, 2, 2.0),
    Sketcher.Constraint("DistanceY", 1, 1, 1, 2, 11.0),
    Sketcher.Constraint("DistanceX", 0, 2, -1, 1, 2.0),
    Sketcher.Constraint("DistanceY", 0, 2, -1, 1, 80.0),
    Sketcher.Constraint("DistanceY", 4, 2, -1, 1, 51.0),
])
sketch18.setExpression("Constraints[19]", "Params.sketch18_width")
sketch18.setExpression("Constraints[20]", "Params.sketch18_height")
pocket10 = body.newObject("PartDesign::Pocket", "Pocket009")
pocket10.Profile = sketch18
pocket10.setExpression("Length", "Params.pocket10_length")

# Sketch on XZ plane
sketch19 = body.newObject("Sketcher::SketchObject", "Sketch018")
sketch19.AttachmentSupport = (doc.getObject("XZ_Plane"), [""])
sketch19.MapMode = "FlatFace"
sketch19.AttachmentOffset = App.Placement(V(0, 0, 9), App.Rotation())
sketch19.addGeometry([
    Part.Circle(V(29, -12.3, 0), V(0, 0, 1), 1.6),
    Part.Circle(V(29, -20.3, 0), V(0, 0, 1), 1.6),
], False)
sketch19.addConstraint([
    Sketcher.Constraint("Equal", 0, 1),
    Sketcher.Constraint("Vertical", 0, 3, 1, 3),
    Sketcher.Constraint("Diameter", 0, 3.2),
    Sketcher.Constraint("DistanceX", -1, 1, 0, 3, 29.0),
    Sketcher.Constraint("DistanceY", 1, 3, 0, 3, 8.0),
    Sketcher.Constraint("DistanceY", 0, 3, -1, 1, 12.3),
])
sketch19.setExpression("Constraints[2]", "Params.sketch19_diameter")
pocket11 = body.newObject("PartDesign::Pocket", "Pocket010")
pocket11.Profile = sketch19
pocket11.setExpression("Length", "Params.pocket11_length")

# Sketch on XZ plane
sketch20 = body.newObject("Sketcher::SketchObject", "Sketch019")
sketch20.AttachmentSupport = (doc.getObject("XZ_Plane"), [""])
sketch20.MapMode = "FlatFace"
sketch20.AttachmentOffset = App.Placement(V(0, 0, 9), App.Rotation())
sketch20.addGeometry(Part.Circle(V(1.4, -17.5, 0), V(0, 0, 1), 3.2), False)
sketch20.addConstraint([
    Sketcher.Constraint("Diameter", 0, 6.5),
    Sketcher.Constraint("DistanceX", -1, 1, 0, 3, 1.4),
    Sketcher.Constraint("DistanceY", 0, 3, -1, 1, 17.5),
])
sketch20.setExpression("Constraints[0]", "Params.sketch20_diameter")
pocket12 = body.newObject("PartDesign::Pocket", "Pocket011")
pocket12.Profile = sketch20
pocket12.setExpression("Length", "Params.pocket12_length")

doc.recompute()
